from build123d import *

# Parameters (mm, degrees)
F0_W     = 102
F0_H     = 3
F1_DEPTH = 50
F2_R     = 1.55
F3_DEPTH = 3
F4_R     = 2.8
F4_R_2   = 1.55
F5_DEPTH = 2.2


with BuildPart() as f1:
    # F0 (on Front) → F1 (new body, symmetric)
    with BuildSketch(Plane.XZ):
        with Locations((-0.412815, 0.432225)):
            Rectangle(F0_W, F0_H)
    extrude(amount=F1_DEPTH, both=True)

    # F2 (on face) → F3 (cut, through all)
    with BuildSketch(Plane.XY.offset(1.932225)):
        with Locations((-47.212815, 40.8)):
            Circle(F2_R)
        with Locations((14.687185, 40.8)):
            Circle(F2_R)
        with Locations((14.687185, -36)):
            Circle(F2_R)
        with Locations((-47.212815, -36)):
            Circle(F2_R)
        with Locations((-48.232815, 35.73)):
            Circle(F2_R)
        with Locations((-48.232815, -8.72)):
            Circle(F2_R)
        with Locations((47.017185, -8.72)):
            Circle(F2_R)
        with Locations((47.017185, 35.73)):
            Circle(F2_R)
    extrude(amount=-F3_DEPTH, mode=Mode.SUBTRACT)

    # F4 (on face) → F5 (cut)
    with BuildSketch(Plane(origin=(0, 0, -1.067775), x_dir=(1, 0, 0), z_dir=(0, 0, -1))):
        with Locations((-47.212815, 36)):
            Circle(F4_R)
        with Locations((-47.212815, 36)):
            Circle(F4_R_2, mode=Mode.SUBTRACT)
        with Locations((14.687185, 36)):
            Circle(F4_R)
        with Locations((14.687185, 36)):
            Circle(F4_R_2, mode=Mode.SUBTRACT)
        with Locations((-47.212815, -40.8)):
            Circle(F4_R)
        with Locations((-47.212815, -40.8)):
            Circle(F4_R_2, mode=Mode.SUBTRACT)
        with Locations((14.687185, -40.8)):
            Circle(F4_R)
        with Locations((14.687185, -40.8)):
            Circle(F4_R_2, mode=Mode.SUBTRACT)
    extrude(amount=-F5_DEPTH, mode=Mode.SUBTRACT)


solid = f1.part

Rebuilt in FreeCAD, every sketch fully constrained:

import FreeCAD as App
import Part
import Sketcher
from FreeCAD import Vector
Q = App.Units.Quantity

doc = App.newDocument("Part")
body = doc.addObject("PartDesign::Body", "Body")

# Sketch on XZ plane
sketch1 = body.newObject("Sketcher::SketchObject", "Sketch")
sketch1.AttachmentSupport = (doc.getObject("XZ_Plane"), [""])
sketch1.MapMode = "FlatFace"
sketch1.addGeometry(Part.LineSegment(Vector(-51.4, 1.9, 0), Vector(-51.4, -1.1, 0)), False)
sketch1.addGeometry(Part.LineSegment(Vector(-51.4, -1.1, 0), Vector(50.6, -1.1, 0)), False)
sketch1.addGeometry(Part.LineSegment(Vector(50.6, -1.1, 0), Vector(50.6, 1.9, 0)), False)
sketch1.addGeometry(Part.LineSegment(Vector(50.6, 1.9, 0), Vector(-51.4, 1.9, 0)), False)
sketch1.addConstraint(Sketcher.Constraint("Coincident", 0, 2, 1, 1))
sketch1.addConstraint(Sketcher.Constraint("Coincident", 1, 2, 2, 1))
sketch1.addConstraint(Sketcher.Constraint("Coincident", 2, 2, 3, 1))
sketch1.addConstraint(Sketcher.Constraint("Coincident", 3, 2, 0, 1))
sketch1.addConstraint(Sketcher.Constraint("Vertical", 0))
sketch1.addConstraint(Sketcher.Constraint("Horizontal", 1))
sketch1.addConstraint(Sketcher.Constraint("Vertical", 2))
sketch1.addConstraint(Sketcher.Constraint("Horizontal", 3))
sketch1.addConstraint(Sketcher.Constraint("DistanceX", 1, 1, 1, 2, Q("102 mm")))
sketch1.addConstraint(Sketcher.Constraint("DistanceY", 0, 2, 0, 1, Q("3 mm")))
sketch1.addConstraint(Sketcher.Constraint("DistanceX", 0, 2, -1, 1, Q("51.412815 mm")))
sketch1.addConstraint(Sketcher.Constraint("DistanceY", 0, 2, -1, 1, Q("1.067775 mm")))
pad1 = body.newObject("PartDesign::Pad", "Pad")
pad1.Profile = sketch1
pad1.Length = 100
pad1.Midplane = True

# Sketch on XY plane
sketch2 = body.newObject("Sketcher::SketchObject", "Sketch001")
sketch2.AttachmentSupport = (doc.getObject("XY_Plane"), [""])
sketch2.MapMode = "FlatFace"
sketch2.AttachmentOffset = App.Placement(Vector(0, 0, 1.932225), App.Rotation())
sketch2.addGeometry(Part.Circle(Vector(-47.2, 40.8, 0), Vector(0, 0, 1), 1.6), False)
sketch2.addGeometry(Part.Circle(Vector(14.7, 40.8, 0), Vector(0, 0, 1), 1.6), False)
sketch2.addGeometry(Part.Circle(Vector(14.7, -36, 0), Vector(0, 0, 1), 1.6), False)
sketch2.addGeometry(Part.Circle(Vector(-47.2, -36, 0), Vector(0, 0, 1), 1.6), False)
sketch2.addGeometry(Part.Circle(Vector(-48.2, 35.7, 0), Vector(0, 0, 1), 1.6), False)
sketch2.addGeometry(Part.Circle(Vector(-48.2, -8.7, 0), Vector(0, 0, 1), 1.6), False)
sketch2.addGeometry(Part.Circle(Vector(47, -8.7, 0), Vector(0, 0, 1), 1.6), False)
sketch2.addGeometry(Part.Circle(Vector(47, 35.7, 0), Vector(0, 0, 1), 1.6), False)
sketch2.addConstraint(Sketcher.Constraint("Equal", 0, 1))
sketch2.addConstraint(Sketcher.Constraint("Equal", 1, 2))
sketch2.addConstraint(Sketcher.Constraint("Equal", 2, 3))
sketch2.addConstraint(Sketcher.Constraint("Equal", 3, 4))
sketch2.addConstraint(Sketcher.Constraint("Equal", 4, 5))
sketch2.addConstraint(Sketcher.Constraint("Equal", 5, 6))
sketch2.addConstraint(Sketcher.Constraint("Equal", 6, 7))
sketch2.addConstraint(Sketcher.Constraint("Horizontal", 0, 3, 1, 3))
sketch2.addConstraint(Sketcher.Constraint("Horizontal", 2, 3, 3, 3))
sketch2.addConstraint(Sketcher.Constraint("Horizontal", 5, 3, 6, 3))
sketch2.addConstraint(Sketcher.Constraint("Horizontal", 4, 3, 7, 3))
sketch2.addConstraint(Sketcher.Constraint("Vertical", 1, 3, 2, 3))
sketch2.addConstraint(Sketcher.Constraint("Vertical", 0, 3, 3, 3))
sketch2.addConstraint(Sketcher.Constraint("Vertical", 4, 3, 5, 3))
sketch2.addConstraint(Sketcher.Constraint("Vertical", 6, 3, 7, 3))
sketch2.addConstraint(Sketcher.Constraint("Diameter", 0, Q("3.1 mm")))
sketch2.addConstraint(Sketcher.Constraint("DistanceY", 2, 3, -1, 1, Q("36 mm")))
sketch2.addConstraint(Sketcher.Constraint("DistanceY", -1, 1, 0, 3, Q("40.8 mm")))
sketch2.addConstraint(Sketcher.Constraint("DistanceX", 0, 3, 1, 3, Q("61.9 mm")))
sketch2.addConstraint(Sketcher.Constraint("DistanceY", -1, 1, 4, 3, Q("35.73 mm")))
sketch2.addConstraint(Sketcher.Constraint("DistanceY", 5, 3, -1, 1, Q("8.72 mm")))
sketch2.addConstraint(Sketcher.Constraint("DistanceX", 4, 3, 0, 3, Q("1.02 mm")))
sketch2.addConstraint(Sketcher.Constraint("DistanceX", 2, 3, 6, 3, Q("32.33 mm")))
sketch2.addConstraint(Sketcher.Constraint("DistanceX", 0, 3, -1, 1, Q("47.212815 mm")))
pocket1 = body.newObject("PartDesign::Pocket", "Pocket")
pocket1.Profile = sketch2
pocket1.Type = "ThroughAll"

# Sketch on XY plane
sketch3 = body.newObject("Sketcher::SketchObject", "Sketch002")
sketch3.AttachmentSupport = (doc.getObject("XY_Plane"), [""])
sketch3.MapMode = "FlatFace"
sketch3.AttachmentOffset = App.Placement(Vector(0, 0, -1.067775), App.Rotation())
sketch3.addGeometry(Part.Circle(Vector(-47.2, -36, 0), Vector(0, 0, 1), 2.8), False)
sketch3.addGeometry(Part.Circle(Vector(-47.2, -36, 0), Vector(0, 0, 1), 1.6), False)
sketch3.addGeometry(Part.Circle(Vector(14.7, -36, 0), Vector(0, 0, 1), 2.8), False)
sketch3.addGeometry(Part.Circle(Vector(14.7, -36, 0), Vector(0, 0, 1), 1.6), False)
sketch3.addGeometry(Part.Circle(Vector(-47.2, 40.8, 0), Vector(0, 0, 1), 2.8), False)
sketch3.addGeometry(Part.Circle(Vector(-47.2, 40.8, 0), Vector(0, 0, 1), 1.6), False)
sketch3.addGeometry(Part.Circle(Vector(14.7, 40.8, 0), Vector(0, 0, 1), 2.8), False)
sketch3.addGeometry(Part.Circle(Vector(14.7, 40.8, 0), Vector(0, 0, 1), 1.6), False)
sketch3.addConstraint(Sketcher.Constraint("Coincident", 1, 3, 0, 3))
sketch3.addConstraint(Sketcher.Constraint("Coincident", 3, 3, 2, 3))
sketch3.addConstraint(Sketcher.Constraint("Coincident", 5, 3, 4, 3))
sketch3.addConstraint(Sketcher.Constraint("Coincident", 7, 3, 6, 3))
sketch3.addConstraint(Sketcher.Constraint("Equal", 0, 2))
sketch3.addConstraint(Sketcher.Constraint("Equal", 1, 3))
sketch3.addConstraint(Sketcher.Constraint("Equal", 2, 4))
sketch3.addConstraint(Sketcher.Constraint("Equal", 3, 5))
sketch3.addConstraint(Sketcher.Constraint("Equal", 4, 6))
sketch3.addConstraint(Sketcher.Constraint("Equal", 5, 7))
sketch3.addConstraint(Sketcher.Constraint("Horizontal", 1, 3, 2, 3))
sketch3.addConstraint(Sketcher.Constraint("Horizontal", 5, 3, 6, 3))
sketch3.addConstraint(Sketcher.Constraint("Vertical", 1, 3, 4, 3))
sketch3.addConstraint(Sketcher.Constraint("Vertical", 3, 3, 6, 3))
sketch3.addConstraint(Sketcher.Constraint("Diameter", 0, Q("5.6 mm")))
sketch3.addConstraint(Sketcher.Constraint("Diameter", 1, Q("3.1 mm")))
sketch3.addConstraint(Sketcher.Constraint("DistanceY", 0, 3, -1, 1, Q("36 mm")))
sketch3.addConstraint(Sketcher.Constraint("DistanceY", -1, 1, 4, 3, Q("40.8 mm")))
sketch3.addConstraint(Sketcher.Constraint("DistanceX", 0, 3, 2, 3, Q("61.9 mm")))
sketch3.addConstraint(Sketcher.Constraint("DistanceX", 0, 3, -1, 1, Q("47.212815 mm")))
pocket2 = body.newObject("PartDesign::Pocket", "Pocket001")
pocket2.Profile = sketch3
pocket2.Length = 2.2
pocket2.Reversed = True

doc.recompute()
